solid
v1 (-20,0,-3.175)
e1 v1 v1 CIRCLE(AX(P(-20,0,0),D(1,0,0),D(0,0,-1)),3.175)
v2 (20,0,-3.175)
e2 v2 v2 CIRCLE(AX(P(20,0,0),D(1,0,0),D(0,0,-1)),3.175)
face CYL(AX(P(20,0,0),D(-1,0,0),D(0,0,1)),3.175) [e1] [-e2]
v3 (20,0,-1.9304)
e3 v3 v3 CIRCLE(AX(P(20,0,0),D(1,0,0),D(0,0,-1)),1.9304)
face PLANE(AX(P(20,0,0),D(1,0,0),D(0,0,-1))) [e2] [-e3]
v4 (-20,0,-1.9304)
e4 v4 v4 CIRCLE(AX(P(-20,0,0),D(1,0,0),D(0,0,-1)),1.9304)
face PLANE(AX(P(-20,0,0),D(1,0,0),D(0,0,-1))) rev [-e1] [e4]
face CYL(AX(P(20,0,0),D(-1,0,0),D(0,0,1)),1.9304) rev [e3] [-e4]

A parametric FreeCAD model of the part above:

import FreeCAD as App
import Part
import Sketcher

V = App.Vector
Q = App.Units.Quantity

doc = App.newDocument("Part")
body = doc.addObject("PartDesign::Body", "Body")

sketch1 = doc.addObject("Sketcher::SketchObject", "Sketch")
body.addObject(sketch1)
sketch1.AttachmentSupport = (doc.YZ_Plane, [""])
sketch1.MapMode = "FlatFace"
sketch1.addGeometry([
    Part.Circle(V(0, 0, 0), V(0, 0, 1), 3.2),
    Part.Circle(V(0, 0, 0), V(0, 0, 1), 1.9),
], False)
sketch1.addConstraint([
    Sketcher.Constraint("Coincident", 0, 3, -1, 1),
    Sketcher.Constraint("Coincident", 1, 3, -1, 1),
    Sketcher.Constraint("Diameter", 0, Q("0.25 in")),
    Sketcher.Constraint("Diameter", 1, Q("0.152 in")),
])
pad1 = doc.addObject("PartDesign::Pad", "Pad")
body.addObject(pad1)
pad1.Profile = sketch1
pad1.Length = 40
pad1.Midplane = True

doc.recompute()
